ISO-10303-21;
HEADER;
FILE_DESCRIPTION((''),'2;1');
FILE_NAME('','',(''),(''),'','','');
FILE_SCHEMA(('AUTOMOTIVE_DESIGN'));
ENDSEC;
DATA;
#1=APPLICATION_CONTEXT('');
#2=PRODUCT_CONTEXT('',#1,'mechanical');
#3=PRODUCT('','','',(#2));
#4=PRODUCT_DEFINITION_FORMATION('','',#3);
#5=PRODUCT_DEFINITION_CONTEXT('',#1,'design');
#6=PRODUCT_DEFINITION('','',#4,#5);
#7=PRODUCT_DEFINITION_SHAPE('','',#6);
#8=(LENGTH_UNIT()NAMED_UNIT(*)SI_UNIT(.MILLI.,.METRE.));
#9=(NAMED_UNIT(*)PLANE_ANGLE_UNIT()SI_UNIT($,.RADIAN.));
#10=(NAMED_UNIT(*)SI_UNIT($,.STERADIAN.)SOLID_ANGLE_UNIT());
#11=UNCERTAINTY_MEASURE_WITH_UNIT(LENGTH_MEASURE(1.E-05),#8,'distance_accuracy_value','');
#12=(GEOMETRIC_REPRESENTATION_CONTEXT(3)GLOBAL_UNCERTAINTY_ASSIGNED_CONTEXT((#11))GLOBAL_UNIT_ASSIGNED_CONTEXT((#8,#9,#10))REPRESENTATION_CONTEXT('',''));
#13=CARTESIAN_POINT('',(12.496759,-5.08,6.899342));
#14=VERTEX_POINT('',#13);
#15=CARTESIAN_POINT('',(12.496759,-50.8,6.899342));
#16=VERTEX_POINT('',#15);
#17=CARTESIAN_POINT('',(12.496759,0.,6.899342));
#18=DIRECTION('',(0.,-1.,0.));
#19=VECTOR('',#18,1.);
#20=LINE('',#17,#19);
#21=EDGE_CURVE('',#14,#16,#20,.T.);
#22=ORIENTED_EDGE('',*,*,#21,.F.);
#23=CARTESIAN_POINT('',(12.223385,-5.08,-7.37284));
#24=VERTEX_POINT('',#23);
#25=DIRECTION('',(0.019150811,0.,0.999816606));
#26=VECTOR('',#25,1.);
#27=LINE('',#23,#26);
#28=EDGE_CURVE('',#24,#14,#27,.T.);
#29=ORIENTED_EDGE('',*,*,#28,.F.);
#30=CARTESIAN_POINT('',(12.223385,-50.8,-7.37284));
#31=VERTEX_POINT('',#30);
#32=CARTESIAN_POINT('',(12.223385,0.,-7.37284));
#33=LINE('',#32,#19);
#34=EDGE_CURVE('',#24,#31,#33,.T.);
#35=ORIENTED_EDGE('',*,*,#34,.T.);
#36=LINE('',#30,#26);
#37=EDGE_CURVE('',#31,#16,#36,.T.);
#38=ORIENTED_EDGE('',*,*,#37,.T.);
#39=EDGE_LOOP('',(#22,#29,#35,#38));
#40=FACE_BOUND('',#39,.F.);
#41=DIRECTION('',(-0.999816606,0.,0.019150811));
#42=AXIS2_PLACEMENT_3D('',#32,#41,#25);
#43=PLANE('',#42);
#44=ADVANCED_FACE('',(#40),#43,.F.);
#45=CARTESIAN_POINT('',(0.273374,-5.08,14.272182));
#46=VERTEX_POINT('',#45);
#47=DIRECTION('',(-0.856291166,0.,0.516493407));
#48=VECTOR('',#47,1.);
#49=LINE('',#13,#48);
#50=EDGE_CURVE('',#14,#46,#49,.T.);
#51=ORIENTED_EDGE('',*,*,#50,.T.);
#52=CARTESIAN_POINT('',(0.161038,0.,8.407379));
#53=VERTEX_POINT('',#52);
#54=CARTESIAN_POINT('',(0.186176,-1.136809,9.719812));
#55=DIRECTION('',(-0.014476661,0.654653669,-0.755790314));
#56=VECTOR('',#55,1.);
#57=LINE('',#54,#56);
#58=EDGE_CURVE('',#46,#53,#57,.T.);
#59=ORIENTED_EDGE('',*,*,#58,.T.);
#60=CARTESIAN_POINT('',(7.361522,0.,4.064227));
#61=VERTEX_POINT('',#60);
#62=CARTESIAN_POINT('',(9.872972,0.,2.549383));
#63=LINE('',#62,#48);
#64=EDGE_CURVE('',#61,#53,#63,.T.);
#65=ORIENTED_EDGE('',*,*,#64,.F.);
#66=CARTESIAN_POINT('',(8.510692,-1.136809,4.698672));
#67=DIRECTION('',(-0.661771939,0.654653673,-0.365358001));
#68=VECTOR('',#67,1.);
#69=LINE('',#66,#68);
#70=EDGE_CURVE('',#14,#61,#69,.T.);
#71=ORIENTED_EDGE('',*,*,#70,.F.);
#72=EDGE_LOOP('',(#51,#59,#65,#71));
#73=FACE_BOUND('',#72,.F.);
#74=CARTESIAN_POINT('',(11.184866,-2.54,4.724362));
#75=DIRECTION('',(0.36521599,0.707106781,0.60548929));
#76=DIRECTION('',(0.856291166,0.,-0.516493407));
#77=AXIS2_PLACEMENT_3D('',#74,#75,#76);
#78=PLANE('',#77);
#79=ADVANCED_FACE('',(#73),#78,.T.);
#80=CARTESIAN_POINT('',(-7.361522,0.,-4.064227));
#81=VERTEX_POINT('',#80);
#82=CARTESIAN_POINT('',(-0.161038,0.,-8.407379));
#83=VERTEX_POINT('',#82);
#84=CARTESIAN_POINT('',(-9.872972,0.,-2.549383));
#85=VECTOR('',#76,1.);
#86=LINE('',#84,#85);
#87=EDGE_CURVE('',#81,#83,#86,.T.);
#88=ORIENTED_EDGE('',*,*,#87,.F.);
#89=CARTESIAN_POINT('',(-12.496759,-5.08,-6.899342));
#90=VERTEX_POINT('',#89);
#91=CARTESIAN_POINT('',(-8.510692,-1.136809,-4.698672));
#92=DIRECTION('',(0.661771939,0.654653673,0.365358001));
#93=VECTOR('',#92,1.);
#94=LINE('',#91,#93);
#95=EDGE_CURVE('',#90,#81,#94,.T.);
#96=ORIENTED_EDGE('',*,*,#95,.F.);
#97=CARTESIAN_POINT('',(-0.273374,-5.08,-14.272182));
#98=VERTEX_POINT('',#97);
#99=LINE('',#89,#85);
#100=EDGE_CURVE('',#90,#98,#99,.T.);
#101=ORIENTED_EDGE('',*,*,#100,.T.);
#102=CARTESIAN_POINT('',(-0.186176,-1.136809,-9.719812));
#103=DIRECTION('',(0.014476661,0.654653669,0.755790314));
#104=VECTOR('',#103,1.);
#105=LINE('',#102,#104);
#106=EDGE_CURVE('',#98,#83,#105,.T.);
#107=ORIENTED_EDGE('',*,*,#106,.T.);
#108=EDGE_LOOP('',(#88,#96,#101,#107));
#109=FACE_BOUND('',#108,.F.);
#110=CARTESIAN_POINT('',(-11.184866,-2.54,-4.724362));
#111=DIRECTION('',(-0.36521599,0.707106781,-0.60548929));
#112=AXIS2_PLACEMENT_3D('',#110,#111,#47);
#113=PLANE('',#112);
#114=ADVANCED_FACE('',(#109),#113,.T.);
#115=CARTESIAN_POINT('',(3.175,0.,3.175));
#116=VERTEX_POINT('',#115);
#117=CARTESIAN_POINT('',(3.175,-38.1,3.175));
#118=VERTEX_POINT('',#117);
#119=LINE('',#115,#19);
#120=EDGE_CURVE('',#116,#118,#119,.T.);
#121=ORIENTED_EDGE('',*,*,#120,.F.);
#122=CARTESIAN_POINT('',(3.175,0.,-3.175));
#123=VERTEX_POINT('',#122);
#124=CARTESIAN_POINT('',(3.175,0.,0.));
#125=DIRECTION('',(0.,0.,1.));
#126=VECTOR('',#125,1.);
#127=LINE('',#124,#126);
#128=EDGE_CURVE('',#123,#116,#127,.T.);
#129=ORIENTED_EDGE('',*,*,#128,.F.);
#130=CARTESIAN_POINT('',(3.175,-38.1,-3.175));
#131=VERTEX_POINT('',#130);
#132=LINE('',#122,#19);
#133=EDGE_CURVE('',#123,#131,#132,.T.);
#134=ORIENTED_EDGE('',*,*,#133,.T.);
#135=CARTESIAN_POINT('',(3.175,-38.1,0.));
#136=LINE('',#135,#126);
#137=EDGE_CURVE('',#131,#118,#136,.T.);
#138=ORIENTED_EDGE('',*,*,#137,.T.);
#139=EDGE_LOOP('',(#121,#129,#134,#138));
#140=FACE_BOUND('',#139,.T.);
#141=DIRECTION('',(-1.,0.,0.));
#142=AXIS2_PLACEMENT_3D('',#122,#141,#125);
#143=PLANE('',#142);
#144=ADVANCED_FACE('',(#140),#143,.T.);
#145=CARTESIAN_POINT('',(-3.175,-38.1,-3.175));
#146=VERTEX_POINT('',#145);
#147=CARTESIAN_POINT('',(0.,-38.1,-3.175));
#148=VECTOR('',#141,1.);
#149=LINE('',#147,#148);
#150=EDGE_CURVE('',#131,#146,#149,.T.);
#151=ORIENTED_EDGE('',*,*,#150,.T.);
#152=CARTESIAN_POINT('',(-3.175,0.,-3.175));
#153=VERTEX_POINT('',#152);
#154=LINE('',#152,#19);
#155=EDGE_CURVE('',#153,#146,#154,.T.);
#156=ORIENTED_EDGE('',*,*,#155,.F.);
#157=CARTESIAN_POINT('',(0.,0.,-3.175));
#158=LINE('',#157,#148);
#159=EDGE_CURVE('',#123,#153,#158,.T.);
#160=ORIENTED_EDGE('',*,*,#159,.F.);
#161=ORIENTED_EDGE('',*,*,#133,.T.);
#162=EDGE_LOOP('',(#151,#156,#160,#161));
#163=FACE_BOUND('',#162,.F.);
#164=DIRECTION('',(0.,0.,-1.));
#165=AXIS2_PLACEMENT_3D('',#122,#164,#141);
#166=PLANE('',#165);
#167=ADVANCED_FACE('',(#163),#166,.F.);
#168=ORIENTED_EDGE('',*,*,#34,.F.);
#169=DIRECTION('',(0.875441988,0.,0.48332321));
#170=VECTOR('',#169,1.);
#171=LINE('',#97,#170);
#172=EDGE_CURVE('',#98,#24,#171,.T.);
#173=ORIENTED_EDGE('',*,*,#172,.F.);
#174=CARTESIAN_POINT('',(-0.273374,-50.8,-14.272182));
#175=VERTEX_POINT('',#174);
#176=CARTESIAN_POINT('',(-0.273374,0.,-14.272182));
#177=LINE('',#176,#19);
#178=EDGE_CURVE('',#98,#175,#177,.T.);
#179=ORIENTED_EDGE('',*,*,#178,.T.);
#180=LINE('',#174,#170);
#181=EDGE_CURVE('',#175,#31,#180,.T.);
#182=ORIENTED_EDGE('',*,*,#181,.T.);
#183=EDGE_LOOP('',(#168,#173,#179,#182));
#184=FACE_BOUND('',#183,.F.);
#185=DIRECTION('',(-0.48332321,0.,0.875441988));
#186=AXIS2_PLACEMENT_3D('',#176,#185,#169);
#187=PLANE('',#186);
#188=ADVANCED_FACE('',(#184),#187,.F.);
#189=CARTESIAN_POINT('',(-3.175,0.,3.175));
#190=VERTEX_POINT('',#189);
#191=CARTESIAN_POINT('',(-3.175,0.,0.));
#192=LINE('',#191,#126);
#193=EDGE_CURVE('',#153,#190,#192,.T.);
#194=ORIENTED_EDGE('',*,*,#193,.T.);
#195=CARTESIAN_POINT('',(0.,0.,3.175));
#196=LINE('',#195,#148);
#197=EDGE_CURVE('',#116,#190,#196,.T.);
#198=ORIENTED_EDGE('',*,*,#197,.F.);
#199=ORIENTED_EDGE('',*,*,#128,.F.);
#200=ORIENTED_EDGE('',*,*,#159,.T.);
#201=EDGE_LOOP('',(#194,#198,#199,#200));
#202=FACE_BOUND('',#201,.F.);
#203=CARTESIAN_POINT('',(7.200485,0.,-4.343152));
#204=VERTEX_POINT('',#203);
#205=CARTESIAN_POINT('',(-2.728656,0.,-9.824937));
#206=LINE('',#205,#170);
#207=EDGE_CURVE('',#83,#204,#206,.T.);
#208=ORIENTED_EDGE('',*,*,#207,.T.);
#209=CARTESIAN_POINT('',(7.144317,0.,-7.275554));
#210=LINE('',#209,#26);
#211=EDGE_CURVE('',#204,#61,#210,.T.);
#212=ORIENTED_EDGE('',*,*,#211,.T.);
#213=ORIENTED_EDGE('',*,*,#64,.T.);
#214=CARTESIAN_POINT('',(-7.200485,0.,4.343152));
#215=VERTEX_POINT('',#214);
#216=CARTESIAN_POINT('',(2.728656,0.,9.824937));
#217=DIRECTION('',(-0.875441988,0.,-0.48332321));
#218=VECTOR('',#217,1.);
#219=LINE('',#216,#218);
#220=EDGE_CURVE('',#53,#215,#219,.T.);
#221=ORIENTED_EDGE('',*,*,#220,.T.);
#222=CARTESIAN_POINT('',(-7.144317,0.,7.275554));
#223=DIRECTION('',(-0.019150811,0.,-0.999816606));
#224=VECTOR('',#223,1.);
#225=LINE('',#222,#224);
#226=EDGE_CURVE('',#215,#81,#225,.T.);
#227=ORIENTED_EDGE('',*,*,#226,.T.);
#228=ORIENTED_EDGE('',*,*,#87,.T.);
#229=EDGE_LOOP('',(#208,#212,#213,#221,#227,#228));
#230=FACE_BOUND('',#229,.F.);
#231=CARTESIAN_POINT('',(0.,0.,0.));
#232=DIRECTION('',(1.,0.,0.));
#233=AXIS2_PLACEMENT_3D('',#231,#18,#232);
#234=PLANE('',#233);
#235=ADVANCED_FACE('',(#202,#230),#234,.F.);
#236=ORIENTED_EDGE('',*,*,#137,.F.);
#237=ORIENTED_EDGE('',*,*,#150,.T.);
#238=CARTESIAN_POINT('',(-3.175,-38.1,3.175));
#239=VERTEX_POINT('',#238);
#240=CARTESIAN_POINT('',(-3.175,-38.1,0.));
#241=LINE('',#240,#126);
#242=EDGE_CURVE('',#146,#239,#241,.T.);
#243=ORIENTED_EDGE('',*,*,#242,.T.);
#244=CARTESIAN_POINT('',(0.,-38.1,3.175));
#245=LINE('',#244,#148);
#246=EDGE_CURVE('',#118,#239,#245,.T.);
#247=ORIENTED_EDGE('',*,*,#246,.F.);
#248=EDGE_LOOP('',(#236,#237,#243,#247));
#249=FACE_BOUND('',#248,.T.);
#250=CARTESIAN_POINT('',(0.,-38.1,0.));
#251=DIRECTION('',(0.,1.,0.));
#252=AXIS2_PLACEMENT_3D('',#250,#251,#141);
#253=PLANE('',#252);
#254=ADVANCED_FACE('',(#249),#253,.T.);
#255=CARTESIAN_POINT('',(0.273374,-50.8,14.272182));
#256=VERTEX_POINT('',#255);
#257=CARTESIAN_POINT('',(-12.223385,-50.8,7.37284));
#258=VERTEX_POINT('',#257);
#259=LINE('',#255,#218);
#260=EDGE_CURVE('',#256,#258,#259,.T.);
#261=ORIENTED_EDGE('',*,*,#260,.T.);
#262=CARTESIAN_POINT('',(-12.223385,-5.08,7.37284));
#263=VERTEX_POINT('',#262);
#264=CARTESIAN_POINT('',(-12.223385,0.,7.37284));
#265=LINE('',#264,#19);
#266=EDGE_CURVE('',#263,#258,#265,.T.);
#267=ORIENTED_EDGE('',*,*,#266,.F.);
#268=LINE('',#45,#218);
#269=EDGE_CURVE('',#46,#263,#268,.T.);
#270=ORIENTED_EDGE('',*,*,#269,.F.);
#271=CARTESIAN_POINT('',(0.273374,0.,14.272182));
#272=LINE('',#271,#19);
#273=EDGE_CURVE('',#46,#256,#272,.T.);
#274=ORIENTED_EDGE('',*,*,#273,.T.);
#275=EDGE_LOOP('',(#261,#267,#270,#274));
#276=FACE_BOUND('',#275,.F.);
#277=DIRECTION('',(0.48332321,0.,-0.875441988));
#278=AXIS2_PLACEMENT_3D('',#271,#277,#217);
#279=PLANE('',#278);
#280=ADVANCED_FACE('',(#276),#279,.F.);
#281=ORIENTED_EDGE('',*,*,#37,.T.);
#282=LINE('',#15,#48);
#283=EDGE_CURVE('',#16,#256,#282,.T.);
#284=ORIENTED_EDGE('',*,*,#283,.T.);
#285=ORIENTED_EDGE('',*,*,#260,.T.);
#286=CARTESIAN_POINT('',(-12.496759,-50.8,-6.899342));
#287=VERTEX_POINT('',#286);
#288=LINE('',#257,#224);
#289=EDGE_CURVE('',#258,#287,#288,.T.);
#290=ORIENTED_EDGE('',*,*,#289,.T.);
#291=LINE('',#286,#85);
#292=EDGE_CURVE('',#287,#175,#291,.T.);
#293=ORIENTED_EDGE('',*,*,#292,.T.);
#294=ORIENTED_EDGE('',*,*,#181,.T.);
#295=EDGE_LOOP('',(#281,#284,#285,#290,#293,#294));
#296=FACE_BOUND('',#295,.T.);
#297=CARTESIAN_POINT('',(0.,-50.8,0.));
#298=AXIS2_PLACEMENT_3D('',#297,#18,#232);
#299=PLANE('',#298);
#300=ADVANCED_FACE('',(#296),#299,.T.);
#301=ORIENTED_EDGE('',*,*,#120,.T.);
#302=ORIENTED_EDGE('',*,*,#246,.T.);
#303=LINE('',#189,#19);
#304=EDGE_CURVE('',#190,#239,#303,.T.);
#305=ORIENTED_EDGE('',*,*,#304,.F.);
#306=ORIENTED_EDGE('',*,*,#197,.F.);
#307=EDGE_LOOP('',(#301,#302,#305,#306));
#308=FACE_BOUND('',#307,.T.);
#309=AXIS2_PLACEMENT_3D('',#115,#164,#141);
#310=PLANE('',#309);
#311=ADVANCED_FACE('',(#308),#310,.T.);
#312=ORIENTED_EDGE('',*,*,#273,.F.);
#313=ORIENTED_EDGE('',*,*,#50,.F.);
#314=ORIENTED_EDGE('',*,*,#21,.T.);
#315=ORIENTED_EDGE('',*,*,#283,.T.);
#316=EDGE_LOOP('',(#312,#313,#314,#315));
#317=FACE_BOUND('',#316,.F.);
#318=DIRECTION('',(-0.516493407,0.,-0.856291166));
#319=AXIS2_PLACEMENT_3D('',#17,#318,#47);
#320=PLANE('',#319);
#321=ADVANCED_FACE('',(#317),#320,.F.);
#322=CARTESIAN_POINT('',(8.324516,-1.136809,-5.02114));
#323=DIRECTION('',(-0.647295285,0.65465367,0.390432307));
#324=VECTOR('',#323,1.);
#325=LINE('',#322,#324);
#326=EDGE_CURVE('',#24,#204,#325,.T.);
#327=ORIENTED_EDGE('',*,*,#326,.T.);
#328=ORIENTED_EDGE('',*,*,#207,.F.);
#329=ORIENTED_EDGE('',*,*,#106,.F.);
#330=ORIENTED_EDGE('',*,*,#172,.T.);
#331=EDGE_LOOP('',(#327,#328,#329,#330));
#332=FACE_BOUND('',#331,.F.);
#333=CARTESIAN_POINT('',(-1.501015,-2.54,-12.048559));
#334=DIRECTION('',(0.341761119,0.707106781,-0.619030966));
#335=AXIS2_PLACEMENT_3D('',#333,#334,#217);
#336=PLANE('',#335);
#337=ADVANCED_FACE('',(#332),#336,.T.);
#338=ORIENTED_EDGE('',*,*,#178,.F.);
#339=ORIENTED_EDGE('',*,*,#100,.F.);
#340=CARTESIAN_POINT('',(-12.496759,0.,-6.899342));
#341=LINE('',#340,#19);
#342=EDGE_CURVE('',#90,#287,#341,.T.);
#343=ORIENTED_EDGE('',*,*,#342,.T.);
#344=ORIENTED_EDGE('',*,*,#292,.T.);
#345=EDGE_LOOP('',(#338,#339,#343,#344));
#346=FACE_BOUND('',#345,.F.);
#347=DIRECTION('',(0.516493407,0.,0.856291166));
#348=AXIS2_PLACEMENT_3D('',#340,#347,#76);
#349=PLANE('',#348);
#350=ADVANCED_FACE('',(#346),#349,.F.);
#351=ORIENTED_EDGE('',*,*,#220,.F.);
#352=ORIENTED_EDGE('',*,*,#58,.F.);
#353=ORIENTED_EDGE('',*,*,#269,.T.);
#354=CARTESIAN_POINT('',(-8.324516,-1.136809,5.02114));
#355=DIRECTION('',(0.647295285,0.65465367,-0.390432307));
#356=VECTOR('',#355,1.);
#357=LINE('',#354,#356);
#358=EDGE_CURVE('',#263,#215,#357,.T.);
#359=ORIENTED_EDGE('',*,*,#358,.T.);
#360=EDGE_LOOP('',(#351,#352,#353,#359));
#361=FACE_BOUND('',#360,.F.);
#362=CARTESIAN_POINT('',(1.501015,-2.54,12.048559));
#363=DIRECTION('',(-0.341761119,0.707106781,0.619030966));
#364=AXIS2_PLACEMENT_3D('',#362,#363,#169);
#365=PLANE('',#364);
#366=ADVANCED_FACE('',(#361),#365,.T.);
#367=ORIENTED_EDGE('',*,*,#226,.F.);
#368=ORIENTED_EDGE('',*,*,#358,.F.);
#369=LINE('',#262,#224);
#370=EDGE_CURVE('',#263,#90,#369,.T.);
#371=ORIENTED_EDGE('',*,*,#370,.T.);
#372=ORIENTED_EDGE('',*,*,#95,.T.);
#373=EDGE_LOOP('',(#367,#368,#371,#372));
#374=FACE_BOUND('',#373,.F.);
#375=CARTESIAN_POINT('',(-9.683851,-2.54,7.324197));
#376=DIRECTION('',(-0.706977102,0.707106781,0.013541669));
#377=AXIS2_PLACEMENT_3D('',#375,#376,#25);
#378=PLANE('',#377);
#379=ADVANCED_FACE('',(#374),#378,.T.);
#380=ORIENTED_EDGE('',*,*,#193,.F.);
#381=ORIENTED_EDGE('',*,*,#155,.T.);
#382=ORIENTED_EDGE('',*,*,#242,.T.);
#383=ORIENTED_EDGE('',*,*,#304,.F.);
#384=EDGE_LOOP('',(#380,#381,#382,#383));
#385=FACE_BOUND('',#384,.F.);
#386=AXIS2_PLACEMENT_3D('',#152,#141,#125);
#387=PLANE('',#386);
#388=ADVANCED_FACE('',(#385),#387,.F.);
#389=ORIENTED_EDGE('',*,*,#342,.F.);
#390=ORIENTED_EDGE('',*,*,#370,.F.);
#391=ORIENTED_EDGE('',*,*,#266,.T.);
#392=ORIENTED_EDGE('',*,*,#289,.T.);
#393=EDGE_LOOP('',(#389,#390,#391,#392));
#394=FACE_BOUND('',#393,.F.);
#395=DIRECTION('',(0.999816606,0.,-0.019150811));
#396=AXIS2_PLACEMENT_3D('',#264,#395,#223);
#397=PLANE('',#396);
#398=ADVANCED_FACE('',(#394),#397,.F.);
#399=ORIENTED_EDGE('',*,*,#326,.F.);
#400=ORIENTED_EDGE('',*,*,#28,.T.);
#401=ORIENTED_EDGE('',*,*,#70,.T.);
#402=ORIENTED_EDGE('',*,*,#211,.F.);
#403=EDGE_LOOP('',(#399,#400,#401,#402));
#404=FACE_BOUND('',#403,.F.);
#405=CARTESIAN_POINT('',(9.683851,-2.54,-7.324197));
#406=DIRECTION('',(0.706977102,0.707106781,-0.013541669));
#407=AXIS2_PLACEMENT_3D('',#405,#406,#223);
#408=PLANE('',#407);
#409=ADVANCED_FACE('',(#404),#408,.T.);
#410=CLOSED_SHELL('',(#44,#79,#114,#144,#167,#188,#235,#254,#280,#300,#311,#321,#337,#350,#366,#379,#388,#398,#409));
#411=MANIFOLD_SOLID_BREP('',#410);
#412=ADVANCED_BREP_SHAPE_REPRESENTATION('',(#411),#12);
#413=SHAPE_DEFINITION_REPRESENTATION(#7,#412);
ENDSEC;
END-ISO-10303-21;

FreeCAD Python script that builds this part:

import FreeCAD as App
import Part
import Sketcher
Q = App.Units.Quantity


def edges_at(feature, points):
    """Names of the edges that pass closest to the given points."""
    edges = feature.Shape.Edges
    near = lambda p: min(range(len(edges)), key=lambda i: edges[i].distToShape(Part.Vertex(*p))[0])
    return sorted({f"Edge{near(p) + 1}" for p in points})


def add_polygon(sketch, points):
    """Adds a closed chain of lines whose ends are joined by coincident constraints."""
    first, n = sketch.GeometryCount, len(points)
    for a, b in zip(points, points[1:] + points[:1]):
        sketch.addGeometry(Part.LineSegment(App.Vector(*a, 0), App.Vector(*b, 0)), False)
    for i in range(n):
        sketch.addConstraint(Sketcher.Constraint("Coincident", first + i, 2, first + (i + 1) % n, 1))

doc = App.newDocument("Part")
params = doc.addObject("Spreadsheet::Sheet", "Params")
for row, (alias, value) in enumerate([
    ("sketch1_length", "0.562 in"),
    ("pad1_length", "2 in"),
    ("chamfer_size", "0.2 in"),
    ("sketch2_width", "0.25 in"),
    ("pocket1_length", "1.5 in"),
], start=1):
    params.set(f"A{row}", alias)
    params.set(f"B{row}", "=" + value)
    params.setAlias(f"B{row}", alias)

body = doc.addObject("PartDesign::Body", "Body")

sketch1 = doc.addObject("Sketcher::SketchObject", "Sketch")
body.addObject(sketch1)
sketch1.AttachmentSupport = (doc.XZ_Plane, [""])
sketch1.MapMode = "FlatFace"
add_polygon(sketch1, [(12, 7), (0, 14), (-12, 7), (-12, -7), (0, -14), (12, -7)])
sketch1.addConstraint([
    Sketcher.Constraint("Symmetric", 0, 2, 3, 2, -1, 1),
    Sketcher.Constraint("Symmetric", 1, 2, 4, 2, -1, 1),
    Sketcher.Constraint("Symmetric", 2, 2, 5, 2, -1, 1),
    Sketcher.Constraint("Equal", 0, 1),
    Sketcher.Constraint("Equal", 1, 2),
    Sketcher.Constraint("Distance", 0, Q("0.562 in")),
    Sketcher.Constraint("DistanceY", 4, 2, 2, 2, 0.473498),
    Sketcher.Constraint("DistanceY", -1, 1, 1, 2, 7.37284),
    Sketcher.Constraint("DistanceX", 2, 2, -1, 1, 12.496759),
])
sketch1.setExpression("Constraints[11]", "Params.sketch1_length")
pad1 = doc.addObject("PartDesign::Pad", "Pad")
body.addObject(pad1)
pad1.Profile = sketch1
pad1.setExpression("Length", "Params.pad1_length")
doc.recompute()

chamfer = doc.addObject("PartDesign::Chamfer", "Chamfer")
body.addObject(chamfer)
chamfer.Base = (pad1, edges_at(pad1, [
    (6.385, 0, 10.586),
    (12.36, 0, -0.237),
    (5.975, 0, -10.823),
    (-6.385, 0, -10.586),
    (-12.36, 0, 0.237),
    (-5.975, 0, 10.823),
]))
chamfer.setExpression("Size", "Params.chamfer_size")

sketch2 = doc.addObject("Sketcher::SketchObject", "Sketch001")
body.addObject(sketch2)
sketch2.AttachmentSupport = (doc.XZ_Plane, [""])
sketch2.MapMode = "FlatFace"
add_polygon(sketch2, [(3, 3), (3, -3), (-3, -3), (-3, 3)])
sketch2.addConstraint([
    Sketcher.Constraint("Vertical", 0),
    Sketcher.Constraint("Horizontal", 1),
    Sketcher.Constraint("Vertical", 2),
    Sketcher.Constraint("Horizontal", 3),
    Sketcher.Constraint("Symmetric", 0, 2, 2, 2, -1, 1),
    Sketcher.Constraint("Equal", 3, 0),
    Sketcher.Constraint("DistanceX", 1, 2, 1, 1, Q("0.25 in")),
])
sketch2.setExpression("Constraints[10]", "Params.sketch2_width")
pocket1 = doc.addObject("PartDesign::Pocket", "Pocket")
body.addObject(pocket1)
pocket1.Profile = sketch2
pocket1.setExpression("Length", "Params.pocket1_length")
pocket1.Reversed = True

doc.recompute()
